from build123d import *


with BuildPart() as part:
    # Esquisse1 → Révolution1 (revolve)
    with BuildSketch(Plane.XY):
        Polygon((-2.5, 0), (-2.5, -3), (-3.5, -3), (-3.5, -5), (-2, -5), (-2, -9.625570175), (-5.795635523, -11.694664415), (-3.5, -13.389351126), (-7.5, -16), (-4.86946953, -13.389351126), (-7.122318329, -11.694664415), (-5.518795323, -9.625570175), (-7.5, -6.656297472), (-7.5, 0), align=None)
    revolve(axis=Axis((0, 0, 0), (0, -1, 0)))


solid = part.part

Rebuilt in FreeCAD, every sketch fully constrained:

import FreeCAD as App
import Part
import Sketcher

V = App.Vector
Q = App.Units.Quantity

doc = App.newDocument("Part")
params = doc.addObject("Spreadsheet::Sheet", "Params")
for row, (alias, value) in enumerate([
    ("sketch1_width", "5 mm"),
    ("sketch1_width2", "1 mm"),
    ("sketch1_height", "3 mm"),
    ("sketch1_height2", "2 mm"),
    ("sketch1_width3", "1.5 mm"),
    ("revolution_angle", "360 deg"),
], start=1):
    params.set(f"A{row}", alias)
    params.set(f"B{row}", "=" + value)
    params.setAlias(f"B{row}", alias)

body = doc.addObject("PartDesign::Body", "Body")

# Sketch on XY plane
sketch1 = body.newObject("Sketcher::SketchObject", "Sketch")
sketch1.AttachmentSupport = (doc.getObject("XY_Plane"), [""])
sketch1.MapMode = "FlatFace"
sketch1.addGeometry([
    Part.LineSegment(V(-2.5, -3, 0), V(-2.5, 0, 0)),  # 0
    Part.LineSegment(V(-2.5, 0, 0), V(-7.5, 0, 0)),  # 1
    Part.LineSegment(V(-7.5, 0, 0), V(-7.5, -6.656297, 0)),  # 2
    Part.LineSegment(V(-7.5, -6.656297, 0), V(-5.518795, -9.62557, 0)),  # 3
    Part.LineSegment(V(-5.518795, -9.62557, 0), V(-7.122318, -11.694664, 0)),  # 4
    Part.LineSegment(V(-7.122318, -11.694664, 0), V(-4.86947, -13.389351, 0)),  # 5
    Part.LineSegment(V(-4.86947, -13.389351, 0), V(-7.5, -16, 0)),  # 6
    Part.LineSegment(V(-7.5, -16, 0), V(-3.5, -13.389351, 0)),  # 7
    Part.LineSegment(V(-3.5, -13.389351, 0), V(-5.795636, -11.694664, 0)),  # 8
    Part.LineSegment(V(-5.795636, -11.694664, 0), V(-2, -9.62557, 0)),  # 9
    Part.LineSegment(V(-2, -9.62557, 0), V(-2, -5, 0)),  # 10
    Part.LineSegment(V(-2, -5, 0), V(-3.5, -5, 0)),  # 11
    Part.LineSegment(V(-3.5, -5, 0), V(-3.5, -3, 0)),  # 12
    Part.LineSegment(V(-3.5, -3, 0), V(-2.5, -3, 0)),  # 13
], False)
sketch1.addConstraint([
    Sketcher.Constraint("Coincident", 0, 2, 1, 1),
    Sketcher.Constraint("Coincident", 1, 2, 2, 1),
    Sketcher.Constraint("Coincident", 2, 2, 3, 1),
    Sketcher.Constraint("Coincident", 3, 2, 4, 1),
    Sketcher.Constraint("Coincident", 4, 2, 5, 1),
    Sketcher.Constraint("Coincident", 5, 2, 6, 1),
    Sketcher.Constraint("Coincident", 6, 2, 7, 1),
    Sketcher.Constraint("Coincident", 7, 2, 8, 1),
    Sketcher.Constraint("Coincident", 8, 2, 9, 1),
    Sketcher.Constraint("Coincident", 9, 2, 10, 1),
    Sketcher.Constraint("Coincident", 10, 2, 11, 1),
    Sketcher.Constraint("Coincident", 11, 2, 12, 1),
    Sketcher.Constraint("Coincident", 12, 2, 13, 1),
    Sketcher.Constraint("Coincident", 13, 2, 0, 1),
    Sketcher.Constraint("Vertical", 0),
    Sketcher.Constraint("Horizontal", 1),
    Sketcher.Constraint("Vertical", 2),
    Sketcher.Constraint("Vertical", 10),
    Sketcher.Constraint("Horizontal", 11),
    Sketcher.Constraint("Vertical", 12),
    Sketcher.Constraint("Horizontal", 13),
    Sketcher.Constraint("PointOnObject", 0, 2, -1),
    Sketcher.Constraint("Horizontal", 5, 2, 7, 2),
    Sketcher.Constraint("Horizontal", 4, 2, 8, 2),
    Sketcher.Constraint("Horizontal", 3, 2, 9, 2),
    Sketcher.Constraint("Vertical", 2, 2, 6, 2),
    Sketcher.Constraint("Vertical", 7, 2, 11, 2),
    Sketcher.Constraint("DistanceX", 1, 2, 1, 1, Q("5 mm")),
    Sketcher.Constraint("DistanceX", 13, 1, 13, 2, Q("1 mm")),
    Sketcher.Constraint("DistanceY", 0, 1, 0, 2, Q("3 mm")),
    Sketcher.Constraint("DistanceY", 12, 1, 12, 2, Q("2 mm")),
    Sketcher.Constraint("DistanceX", 11, 2, 11, 1, Q("1.5 mm")),
    Sketcher.Constraint("DistanceY", 6, 2, -1, 1, Q("16 mm")),
    Sketcher.Constraint("DistanceX", 9, 2, -1, 1, Q("2 mm")),
    Sketcher.Constraint("Distance", 6, Q("3.7061 mm")),
    Sketcher.Constraint("DistanceY", 10, 1, 10, 2, Q("4.62557 mm")),
    Sketcher.Constraint("Distance", 3, Q("3.569559 mm")),
    Sketcher.Constraint("Distance", 9, Q("4.322962 mm")),
    Sketcher.Constraint("DistanceY", 2, 2, 2, 1, Q("6.656297 mm")),
    Sketcher.Constraint("DistanceX", 4, 2, -1, 1, Q("7.122318 mm")),
    Sketcher.Constraint("DistanceX", 5, 2, -1, 1, Q("4.86947 mm")),
    Sketcher.Constraint("DistanceX", 8, 2, 3, 2, Q("0.27684 mm")),
])
sketch1.setExpression("Constraints[27]", "Params.sketch1_width")
sketch1.setExpression("Constraints[28]", "Params.sketch1_width2")
sketch1.setExpression("Constraints[29]", "Params.sketch1_height")
sketch1.setExpression("Constraints[30]", "Params.sketch1_height2")
sketch1.setExpression("Constraints[31]", "Params.sketch1_width3")
revolution = body.newObject("PartDesign::Revolution", "Revolution")
revolution.Profile = sketch1
revolution.ReferenceAxis = (sketch1, ["V_Axis"])
revolution.setExpression("Angle", "Params.revolution_angle")

doc.recompute()
